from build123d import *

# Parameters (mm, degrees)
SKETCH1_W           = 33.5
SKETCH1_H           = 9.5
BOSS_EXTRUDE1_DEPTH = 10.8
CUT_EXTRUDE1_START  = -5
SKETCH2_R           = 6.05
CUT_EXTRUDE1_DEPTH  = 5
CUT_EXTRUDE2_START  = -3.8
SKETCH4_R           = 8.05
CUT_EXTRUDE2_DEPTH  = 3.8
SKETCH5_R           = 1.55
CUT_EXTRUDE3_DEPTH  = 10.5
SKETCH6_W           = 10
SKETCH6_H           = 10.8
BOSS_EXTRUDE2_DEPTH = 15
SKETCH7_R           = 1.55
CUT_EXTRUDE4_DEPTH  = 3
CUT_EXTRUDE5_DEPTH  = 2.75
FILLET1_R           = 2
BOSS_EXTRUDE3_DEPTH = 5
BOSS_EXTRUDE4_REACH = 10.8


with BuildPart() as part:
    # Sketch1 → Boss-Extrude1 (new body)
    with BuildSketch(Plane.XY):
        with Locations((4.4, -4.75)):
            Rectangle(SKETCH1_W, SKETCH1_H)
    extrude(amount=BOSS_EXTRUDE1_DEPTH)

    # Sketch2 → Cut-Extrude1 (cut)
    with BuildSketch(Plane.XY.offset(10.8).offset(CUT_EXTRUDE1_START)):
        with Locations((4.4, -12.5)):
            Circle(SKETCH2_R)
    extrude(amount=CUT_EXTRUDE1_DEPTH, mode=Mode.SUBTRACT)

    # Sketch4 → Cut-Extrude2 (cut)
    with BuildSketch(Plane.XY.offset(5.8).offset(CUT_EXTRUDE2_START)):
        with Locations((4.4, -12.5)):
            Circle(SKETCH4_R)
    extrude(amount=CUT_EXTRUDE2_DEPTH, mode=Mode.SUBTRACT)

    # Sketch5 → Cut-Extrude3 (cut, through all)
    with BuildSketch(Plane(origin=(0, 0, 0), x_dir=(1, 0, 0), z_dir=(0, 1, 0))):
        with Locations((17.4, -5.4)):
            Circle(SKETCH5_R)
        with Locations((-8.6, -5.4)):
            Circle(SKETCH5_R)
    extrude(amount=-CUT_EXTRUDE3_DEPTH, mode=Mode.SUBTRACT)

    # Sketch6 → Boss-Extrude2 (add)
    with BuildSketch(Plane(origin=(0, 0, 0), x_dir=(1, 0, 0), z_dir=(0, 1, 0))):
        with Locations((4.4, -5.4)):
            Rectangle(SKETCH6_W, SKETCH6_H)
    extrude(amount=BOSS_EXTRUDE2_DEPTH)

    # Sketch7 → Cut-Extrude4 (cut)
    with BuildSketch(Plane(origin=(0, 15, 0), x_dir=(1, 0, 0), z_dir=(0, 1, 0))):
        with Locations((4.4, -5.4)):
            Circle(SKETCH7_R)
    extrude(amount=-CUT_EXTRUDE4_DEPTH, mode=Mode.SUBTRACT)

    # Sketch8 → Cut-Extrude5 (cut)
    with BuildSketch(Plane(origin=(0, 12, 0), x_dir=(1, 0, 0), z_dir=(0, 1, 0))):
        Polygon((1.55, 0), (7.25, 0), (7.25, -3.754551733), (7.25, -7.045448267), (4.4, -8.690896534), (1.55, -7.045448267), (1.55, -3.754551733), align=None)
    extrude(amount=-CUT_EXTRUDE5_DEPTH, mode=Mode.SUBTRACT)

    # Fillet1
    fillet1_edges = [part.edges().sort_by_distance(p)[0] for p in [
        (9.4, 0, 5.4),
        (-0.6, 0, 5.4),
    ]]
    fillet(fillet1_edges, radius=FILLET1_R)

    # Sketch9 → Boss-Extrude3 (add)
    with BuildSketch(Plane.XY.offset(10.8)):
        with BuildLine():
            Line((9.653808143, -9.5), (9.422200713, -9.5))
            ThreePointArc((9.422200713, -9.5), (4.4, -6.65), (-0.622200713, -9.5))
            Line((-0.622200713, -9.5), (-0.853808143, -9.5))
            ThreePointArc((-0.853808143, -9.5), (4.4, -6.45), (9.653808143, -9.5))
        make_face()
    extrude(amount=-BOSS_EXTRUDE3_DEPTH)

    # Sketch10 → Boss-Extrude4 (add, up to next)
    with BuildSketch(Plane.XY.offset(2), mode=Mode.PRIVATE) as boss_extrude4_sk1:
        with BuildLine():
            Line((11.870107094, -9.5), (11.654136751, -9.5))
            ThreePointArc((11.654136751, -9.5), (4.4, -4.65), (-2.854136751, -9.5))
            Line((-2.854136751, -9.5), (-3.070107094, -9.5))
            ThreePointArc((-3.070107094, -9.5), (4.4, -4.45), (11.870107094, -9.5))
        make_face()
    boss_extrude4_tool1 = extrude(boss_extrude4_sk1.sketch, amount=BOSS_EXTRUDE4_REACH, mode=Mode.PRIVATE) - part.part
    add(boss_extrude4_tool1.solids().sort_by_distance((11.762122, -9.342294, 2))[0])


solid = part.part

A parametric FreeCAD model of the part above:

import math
import FreeCAD as App
import Part
import Sketcher

V = App.Vector
Q = App.Units.Quantity


def edges_at(feature, points):
    """Names of the edges that pass closest to the given points."""
    edges = feature.Shape.Edges
    near = lambda p: min(range(len(edges)), key=lambda i: edges[i].distToShape(Part.Vertex(*p))[0])
    return sorted({f"Edge{near(p) + 1}" for p in points})


def add_polygon(sketch, points):
    """Adds a closed chain of lines whose ends are joined by coincident constraints."""
    first, n = sketch.GeometryCount, len(points)
    for a, b in zip(points, points[1:] + points[:1]):
        sketch.addGeometry(Part.LineSegment(App.Vector(*a, 0), App.Vector(*b, 0)), False)
    for i in range(n):
        sketch.addConstraint(Sketcher.Constraint("Coincident", first + i, 2, first + (i + 1) % n, 1))

doc = App.newDocument("Part")
body = doc.addObject("PartDesign::Body", "Body")

sketch1 = body.newObject("Sketcher::SketchObject", "Sketch")
sketch1.AttachmentSupport = (doc.getObject("XY_Plane"), [""])
sketch1.MapMode = "FlatFace"
add_polygon(sketch1, [(-12, 0), (-12, -10), (21, -10), (21, 0)])
sketch1.addConstraint(Sketcher.Constraint("Vertical", 0))
sketch1.addConstraint(Sketcher.Constraint("Horizontal", 1))
sketch1.addConstraint(Sketcher.Constraint("Vertical", 2))
sketch1.addConstraint(Sketcher.Constraint("Horizontal", 3))
sketch1.addConstraint(Sketcher.Constraint("PointOnObject", 2, 2, -1))
sketch1.addConstraint(Sketcher.Constraint("DistanceX", 1, 1, 1, 2, Q("33.5 mm")))
sketch1.addConstraint(Sketcher.Constraint("DistanceY", 0, 2, 0, 1, Q("9.5 mm")))
sketch1.addConstraint(Sketcher.Constraint("DistanceX", 0, 2, -1, 1, Q("12.35 mm")))
pad1 = body.newObject("PartDesign::Pad", "Pad")
pad1.Profile = sketch1
pad1.Length = 10.8

sketch2 = body.newObject("Sketcher::SketchObject", "Sketch001")
sketch2.AttachmentSupport = (doc.getObject("XY_Plane"), [""])
sketch2.MapMode = "FlatFace"
sketch2.AttachmentOffset = App.Placement(V(0, 0, 5.8), App.Rotation())
sketch2.addGeometry(Part.Circle(V(4, -12, 0), V(0, 0, 1), 6), False)
sketch2.addConstraint(Sketcher.Constraint("Diameter", 0, Q("12.1 mm")))
sketch2.addConstraint(Sketcher.Constraint("DistanceX", -1, 1, 0, 3, Q("4.4 mm")))
sketch2.addConstraint(Sketcher.Constraint("DistanceY", 0, 3, -1, 1, Q("12.5 mm")))
pocket1 = body.newObject("PartDesign::Pocket", "Pocket")
pocket1.Profile = sketch2
pocket1.Length = 5
pocket1.Reversed = True

sketch3 = body.newObject("Sketcher::SketchObject", "Sketch002")
sketch3.AttachmentSupport = (doc.getObject("XY_Plane"), [""])
sketch3.MapMode = "FlatFace"
sketch3.AttachmentOffset = App.Placement(V(0, 0, 2), App.Rotation())
sketch3.addGeometry(Part.Circle(V(4, -12, 0), V(0, 0, 1), 8), False)
sketch3.addConstraint(Sketcher.Constraint("Diameter", 0, Q("16.1 mm")))
sketch3.addConstraint(Sketcher.Constraint("DistanceX", -1, 1, 0, 3, Q("4.4 mm")))
sketch3.addConstraint(Sketcher.Constraint("DistanceY", 0, 3, -1, 1, Q("12.5 mm")))
pocket2 = body.newObject("PartDesign::Pocket", "Pocket001")
pocket2.Profile = sketch3
pocket2.Length = 3.8
pocket2.Reversed = True

sketch4 = body.newObject("Sketcher::SketchObject", "Sketch003")
sketch4.AttachmentSupport = (doc.getObject("XZ_Plane"), [""])
sketch4.MapMode = "FlatFace"
sketch4.addGeometry(Part.Circle(V(17.4, 5.4, 0), V(0, 0, 1), 1.6), False)
sketch4.addGeometry(Part.Circle(V(-8.6, 5.4, 0), V(0, 0, 1), 1.6), False)
sketch4.addConstraint(Sketcher.Constraint("Equal", 0, 1))
sketch4.addConstraint(Sketcher.Constraint("Horizontal", 0, 3, 1, 3))
sketch4.addConstraint(Sketcher.Constraint("Diameter", 0, Q("3.1 mm")))
sketch4.addConstraint(Sketcher.Constraint("DistanceX", 1, 3, 0, 3, Q("26 mm")))
sketch4.addConstraint(Sketcher.Constraint("DistanceX", -1, 1, 0, 3, Q("17.4 mm")))
sketch4.addConstraint(Sketcher.Constraint("DistanceY", -1, 1, 0, 3, Q("5.4 mm")))
pocket3 = body.newObject("PartDesign::Pocket", "Pocket002")
pocket3.Profile = sketch4
pocket3.Type = "ThroughAll"
pocket3.Reversed = True

sketch5 = body.newObject("Sketcher::SketchObject", "Sketch004")
sketch5.AttachmentSupport = (doc.getObject("XZ_Plane"), [""])
sketch5.MapMode = "FlatFace"
add_polygon(sketch5, [(-1, 0), (-1, 11), (9, 11), (9, 0)])
sketch5.addConstraint(Sketcher.Constraint("Vertical", 0))
sketch5.addConstraint(Sketcher.Constraint("Horizontal", 1))
sketch5.addConstraint(Sketcher.Constraint("Vertical", 2))
sketch5.addConstraint(Sketcher.Constraint("Horizontal", 3))
sketch5.addConstraint(Sketcher.Constraint("PointOnObject", 2, 2, -1))
sketch5.addConstraint(Sketcher.Constraint("DistanceX", 1, 1, 1, 2, Q("10 mm")))
sketch5.addConstraint(Sketcher.Constraint("DistanceY", 0, 1, 0, 2, Q("10.8 mm")))
sketch5.addConstraint(Sketcher.Constraint("DistanceX", 0, 2, -1, 1, Q("0.6 mm")))
pad2 = body.newObject("PartDesign::Pad", "Pad001")
pad2.Profile = sketch5
pad2.Length = 15
pad2.Reversed = True

sketch6 = body.newObject("Sketcher::SketchObject", "Sketch005")
sketch6.AttachmentSupport = (doc.getObject("XZ_Plane"), [""])
sketch6.MapMode = "FlatFace"
sketch6.AttachmentOffset = App.Placement(V(0, 0, -15), App.Rotation())
sketch6.addGeometry(Part.Circle(V(4.4, 5.4, 0), V(0, 0, 1), 1.6), False)
sketch6.addConstraint(Sketcher.Constraint("Diameter", 0, Q("3.1 mm")))
sketch6.addConstraint(Sketcher.Constraint("DistanceX", -1, 1, 0, 3, Q("4.4 mm")))
sketch6.addConstraint(Sketcher.Constraint("DistanceY", -1, 1, 0, 3, Q("5.4 mm")))
pocket4 = body.newObject("PartDesign::Pocket", "Pocket003")
pocket4.Profile = sketch6
pocket4.Length = 3
pocket4.Reversed = True

sketch7 = body.newObject("Sketcher::SketchObject", "Sketch006")
sketch7.AttachmentSupport = (doc.getObject("XZ_Plane"), [""])
sketch7.MapMode = "FlatFace"
sketch7.AttachmentOffset = App.Placement(V(0, 0, -12), App.Rotation())
add_polygon(sketch7, [(7.2, 0), (1.6, 0), (1.6, 7), (4.4, 8.7), (7.2, 7)])
sketch7.addConstraint(Sketcher.Constraint("Horizontal", 0))
sketch7.addConstraint(Sketcher.Constraint("Vertical", 1))
sketch7.addConstraint(Sketcher.Constraint("Vertical", 4))
sketch7.addConstraint(Sketcher.Constraint("PointOnObject", 0, 2, -1))
sketch7.addConstraint(Sketcher.Constraint("Horizontal", 1, 2, 3, 2))
sketch7.addConstraint(Sketcher.Constraint("Equal", 2, 3))
sketch7.addConstraint(Sketcher.Constraint("Angle", 2, Q("30 deg")))
sketch7.addConstraint(Sketcher.Constraint("DistanceX", 0, 2, 0, 1, Q("5.7 mm")))
sketch7.addConstraint(Sketcher.Constraint("DistanceX", -1, 1, 2, 2, Q("4.4 mm")))
sketch7.addConstraint(Sketcher.Constraint("DistanceY", 1, 1, 1, 2, Q("7.045448 mm")))
pocket5 = body.newObject("PartDesign::Pocket", "Pocket004")
pocket5.Profile = sketch7
pocket5.Length = 2.75
pocket5.Reversed = True
doc.recompute()

fillet = body.newObject("PartDesign::Fillet", "Fillet")
fillet.Base = (pocket5, edges_at(pocket5, [(9.4, 0, 5.4), (-0.6, 0, 5.4)]))
fillet.Radius = 2

sketch8 = body.newObject("Sketcher::SketchObject", "Sketch007")
sketch8.AttachmentSupport = (doc.getObject("XY_Plane"), [""])
sketch8.MapMode = "FlatFace"
sketch8.AttachmentOffset = App.Placement(V(0, 0, 10.8), App.Rotation())
sketch8.addGeometry(Part.LineSegment(V(9.42, -9.5, 0), V(9.65, -9.5, 0)), False)
sketch8.addGeometry(Part.ArcOfCircle(Part.Circle(V(4.4, -12.5, 0), V(0, 0, 1), 6.05), math.radians(30), math.radians(150)), False)
sketch8.addGeometry(Part.LineSegment(V(-0.85, -9.5, 0), V(-0.62, -9.5, 0)), False)
sketch8.addGeometry(Part.ArcOfCircle(Part.Circle(V(4.4, -12.5, 0), V(0, 0, 1), 5.85), math.radians(31), math.radians(149)), False)
sketch8.addConstraint(Sketcher.Constraint("Coincident", 0, 2, 1, 1))
sketch8.addConstraint(Sketcher.Constraint("Coincident", 1, 2, 2, 1))
sketch8.addConstraint(Sketcher.Constraint("Coincident", 2, 2, 3, 2))
sketch8.addConstraint(Sketcher.Constraint("Coincident", 3, 1, 0, 1))
sketch8.addConstraint(Sketcher.Constraint("Horizontal", 0))
sketch8.addConstraint(Sketcher.Constraint("Horizontal", 2))
sketch8.addConstraint(Sketcher.Constraint("Coincident", 3, 3, 1, 3))
sketch8.addConstraint(Sketcher.Constraint("Horizontal", 0, 2, 1, 2))
sketch8.addConstraint(Sketcher.Constraint("Radius", 1, Q("6.05 mm")))
sketch8.addConstraint(Sketcher.Constraint("Radius", 3, Q("5.85 mm")))
sketch8.addConstraint(Sketcher.Constraint("DistanceY", 3, 3, 0, 2, Q("3 mm")))
sketch8.addConstraint(Sketcher.Constraint("DistanceX", -1, 1, 1, 3, Q("4.4 mm")))
sketch8.addConstraint(Sketcher.Constraint("DistanceY", 1, 3, -1, 1, Q("12.5 mm")))
pad3 = body.newObject("PartDesign::Pad", "Pad002")
pad3.Profile = sketch8
pad3.Length = 5
pad3.Reversed = True

sketch9 = body.newObject("Sketcher::SketchObject", "Sketch008")
sketch9.AttachmentSupport = (doc.getObject("XY_Plane"), [""])
sketch9.MapMode = "FlatFace"
sketch9.AttachmentOffset = App.Placement(V(0, 0, 2), App.Rotation())
sketch9.addGeometry(Part.LineSegment(V(11.65, -9.5, 0), V(11.87, -9.5, 0)), False)
sketch9.addGeometry(Part.ArcOfCircle(Part.Circle(V(4.4, -12.5, 0), V(0, 0, 1), 8.05), math.radians(22), math.radians(158)), False)
sketch9.addGeometry(Part.LineSegment(V(-3.07, -9.5, 0), V(-2.85, -9.5, 0)), False)
sketch9.addGeometry(Part.ArcOfCircle(Part.Circle(V(4.4, -12.5, 0), V(0, 0, 1), 7.85), math.radians(22), math.radians(158)), False)
sketch9.addConstraint(Sketcher.Constraint("Coincident", 0, 2, 1, 1))
sketch9.addConstraint(Sketcher.Constraint("Coincident", 1, 2, 2, 1))
sketch9.addConstraint(Sketcher.Constraint("Coincident", 2, 2, 3, 2))
sketch9.addConstraint(Sketcher.Constraint("Coincident", 3, 1, 0, 1))
sketch9.addConstraint(Sketcher.Constraint("Horizontal", 0))
sketch9.addConstraint(Sketcher.Constraint("Horizontal", 2))
sketch9.addConstraint(Sketcher.Constraint("Coincident", 3, 3, 1, 3))
sketch9.addConstraint(Sketcher.Constraint("Horizontal", 0, 2, 1, 2))
sketch9.addConstraint(Sketcher.Constraint("Radius", 1, Q("8.05 mm")))
sketch9.addConstraint(Sketcher.Constraint("Radius", 3, Q("7.85 mm")))
sketch9.addConstraint(Sketcher.Constraint("DistanceY", 1, 3, 0, 2, Q("3 mm")))
sketch9.addConstraint(Sketcher.Constraint("DistanceX", -1, 1, 1, 3, Q("4.4 mm")))
sketch9.addConstraint(Sketcher.Constraint("DistanceY", 1, 3, -1, 1, Q("12.5 mm")))
pad4 = body.newObject("PartDesign::Pad", "Pad003")
pad4.Profile = sketch9
pad4.Type = "UpToFirst"

doc.recompute()
